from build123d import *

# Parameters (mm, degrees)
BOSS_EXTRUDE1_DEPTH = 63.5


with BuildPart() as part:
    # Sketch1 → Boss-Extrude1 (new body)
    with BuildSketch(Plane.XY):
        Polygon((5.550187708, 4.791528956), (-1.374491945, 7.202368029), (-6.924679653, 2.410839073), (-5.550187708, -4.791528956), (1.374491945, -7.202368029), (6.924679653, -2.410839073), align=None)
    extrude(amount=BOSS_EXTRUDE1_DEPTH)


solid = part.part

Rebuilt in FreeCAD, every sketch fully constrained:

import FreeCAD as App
import Part
import Sketcher
from FreeCAD import Vector
Q = App.Units.Quantity

doc = App.newDocument("Part")
body = doc.addObject("PartDesign::Body", "Body")

# Sketch on XY plane
sketch1 = body.newObject("Sketcher::SketchObject", "Sketch")
sketch1.AttachmentSupport = (doc.getObject("XY_Plane"), [""])
sketch1.MapMode = "FlatFace"
sketch1.addGeometry(Part.LineSegment(Vector(6, 5, 0), Vector(-1, 7, 0)), False)
sketch1.addGeometry(Part.LineSegment(Vector(-1, 7, 0), Vector(-7, 2, 0)), False)
sketch1.addGeometry(Part.LineSegment(Vector(-7, 2, 0), Vector(-6, -5, 0)), False)
sketch1.addGeometry(Part.LineSegment(Vector(-6, -5, 0), Vector(1, -7, 0)), False)
sketch1.addGeometry(Part.LineSegment(Vector(1, -7, 0), Vector(7, -2, 0)), False)
sketch1.addGeometry(Part.LineSegment(Vector(7, -2, 0), Vector(6, 5, 0)), False)
sketch1.addConstraint(Sketcher.Constraint("Coincident", 0, 2, 1, 1))
sketch1.addConstraint(Sketcher.Constraint("Coincident", 1, 2, 2, 1))
sketch1.addConstraint(Sketcher.Constraint("Coincident", 2, 2, 3, 1))
sketch1.addConstraint(Sketcher.Constraint("Coincident", 3, 2, 4, 1))
sketch1.addConstraint(Sketcher.Constraint("Coincident", 4, 2, 5, 1))
sketch1.addConstraint(Sketcher.Constraint("Coincident", 5, 2, 0, 1))
sketch1.addConstraint(Sketcher.Constraint("Symmetric", 0, 2, 3, 2, -1, 1))
sketch1.addConstraint(Sketcher.Constraint("Symmetric", 1, 2, 4, 2, -1, 1))
sketch1.addConstraint(Sketcher.Constraint("Symmetric", 2, 2, 5, 2, -1, 1))
sketch1.addConstraint(Sketcher.Constraint("Equal", 0, 1))
sketch1.addConstraint(Sketcher.Constraint("Equal", 1, 2))
sketch1.addConstraint(Sketcher.Constraint("Distance", 0, 7.332348))
sketch1.addConstraint(Sketcher.Constraint("DistanceX", 0, 2, -1, 1, 1.374492))
sketch1.addConstraint(Sketcher.Constraint("DistanceY", -1, 1, 0, 2, 7.202368))
sketch1.addConstraint(Sketcher.Constraint("DistanceX", 1, 2, -1, 1, 6.92468))
pad1 = body.newObject("PartDesign::Pad", "Pad")
pad1.Profile = sketch1
pad1.Length = Q("2.5 in")

doc.recompute()
